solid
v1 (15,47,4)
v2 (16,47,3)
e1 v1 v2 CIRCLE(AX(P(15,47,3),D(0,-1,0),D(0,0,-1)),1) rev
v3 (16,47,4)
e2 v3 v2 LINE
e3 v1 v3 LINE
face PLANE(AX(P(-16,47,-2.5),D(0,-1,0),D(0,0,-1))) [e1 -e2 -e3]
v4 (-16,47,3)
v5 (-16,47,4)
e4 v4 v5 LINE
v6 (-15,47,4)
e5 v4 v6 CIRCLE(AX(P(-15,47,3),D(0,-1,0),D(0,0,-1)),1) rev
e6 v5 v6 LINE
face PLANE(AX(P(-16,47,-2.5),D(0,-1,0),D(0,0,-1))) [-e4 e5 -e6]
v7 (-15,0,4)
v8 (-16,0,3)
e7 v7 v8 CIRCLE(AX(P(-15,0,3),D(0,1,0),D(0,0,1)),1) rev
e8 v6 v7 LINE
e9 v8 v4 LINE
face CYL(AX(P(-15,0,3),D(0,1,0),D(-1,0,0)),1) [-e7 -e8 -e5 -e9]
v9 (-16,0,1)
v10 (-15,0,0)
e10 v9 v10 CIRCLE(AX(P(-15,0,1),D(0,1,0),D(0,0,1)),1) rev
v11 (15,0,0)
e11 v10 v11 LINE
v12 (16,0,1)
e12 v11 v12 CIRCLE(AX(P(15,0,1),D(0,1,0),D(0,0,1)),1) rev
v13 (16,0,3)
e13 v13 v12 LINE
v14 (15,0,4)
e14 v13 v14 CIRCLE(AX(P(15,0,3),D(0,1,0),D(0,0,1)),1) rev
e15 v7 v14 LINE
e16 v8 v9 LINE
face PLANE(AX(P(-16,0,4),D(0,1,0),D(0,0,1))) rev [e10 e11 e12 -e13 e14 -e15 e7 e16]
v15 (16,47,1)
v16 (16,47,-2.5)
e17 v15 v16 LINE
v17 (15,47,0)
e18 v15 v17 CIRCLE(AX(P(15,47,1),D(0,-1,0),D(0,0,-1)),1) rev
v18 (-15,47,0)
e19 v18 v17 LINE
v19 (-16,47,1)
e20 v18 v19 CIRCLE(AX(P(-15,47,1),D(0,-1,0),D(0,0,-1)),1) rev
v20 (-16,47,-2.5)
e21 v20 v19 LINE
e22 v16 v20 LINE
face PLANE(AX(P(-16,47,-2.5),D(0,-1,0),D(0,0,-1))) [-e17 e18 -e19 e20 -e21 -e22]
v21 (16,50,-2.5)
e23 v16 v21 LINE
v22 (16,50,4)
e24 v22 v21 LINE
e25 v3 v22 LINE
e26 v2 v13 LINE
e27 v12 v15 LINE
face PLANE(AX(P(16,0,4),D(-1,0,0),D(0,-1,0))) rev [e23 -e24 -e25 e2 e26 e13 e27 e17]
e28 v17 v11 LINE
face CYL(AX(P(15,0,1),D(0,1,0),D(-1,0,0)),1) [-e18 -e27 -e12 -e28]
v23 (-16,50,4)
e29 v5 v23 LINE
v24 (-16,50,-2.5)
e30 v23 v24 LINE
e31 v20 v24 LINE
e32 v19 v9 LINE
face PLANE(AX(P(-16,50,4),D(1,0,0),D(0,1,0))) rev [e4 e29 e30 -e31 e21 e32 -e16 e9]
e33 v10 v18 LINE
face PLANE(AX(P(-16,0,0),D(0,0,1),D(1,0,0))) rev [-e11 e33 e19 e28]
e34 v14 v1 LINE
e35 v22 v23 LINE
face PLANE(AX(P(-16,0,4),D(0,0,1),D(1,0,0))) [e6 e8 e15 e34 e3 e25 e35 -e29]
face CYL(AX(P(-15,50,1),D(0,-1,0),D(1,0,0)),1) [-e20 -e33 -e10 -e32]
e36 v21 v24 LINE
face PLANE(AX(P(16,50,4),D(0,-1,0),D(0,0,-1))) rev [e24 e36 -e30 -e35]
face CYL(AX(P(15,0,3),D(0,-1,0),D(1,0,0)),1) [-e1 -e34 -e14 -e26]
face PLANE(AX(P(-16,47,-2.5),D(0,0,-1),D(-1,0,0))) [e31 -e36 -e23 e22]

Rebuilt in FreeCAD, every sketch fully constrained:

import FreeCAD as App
import Part
import Sketcher


def edges_at(feature, points):
    """Names of the edges that pass closest to the given points."""
    edges = feature.Shape.Edges
    near = lambda p: min(range(len(edges)), key=lambda i: edges[i].distToShape(Part.Vertex(*p))[0])
    return sorted({f"Edge{near(p) + 1}" for p in points})


def add_polygon(sketch, points):
    """Adds a closed chain of lines whose ends are joined by coincident constraints."""
    first, n = sketch.GeometryCount, len(points)
    for a, b in zip(points, points[1:] + points[:1]):
        sketch.addGeometry(Part.LineSegment(App.Vector(*a, 0), App.Vector(*b, 0)), False)
    for i in range(n):
        sketch.addConstraint(Sketcher.Constraint("Coincident", first + i, 2, first + (i + 1) % n, 1))

doc = App.newDocument("Part")
params = doc.addObject("Spreadsheet::Sheet", "Params")
for row, (alias, value) in enumerate([
    ("sketch1_width", "32 mm"),
    ("sketch1_height", "50 mm"),
    ("pad1_length", "4 mm"),
    ("fillet_radius", "1 mm"),
    ("sketch2_width", "32 mm"),
    ("sketch2_height", "6.5 mm"),
    ("pad2_length", "3 mm"),
], start=1):
    params.set(f"A{row}", alias)
    params.set(f"B{row}", "=" + value)
    params.setAlias(f"B{row}", alias)

body = doc.addObject("PartDesign::Body", "Body")

# Sketch on XY plane
sketch1 = body.newObject("Sketcher::SketchObject", "Sketch")
sketch1.AttachmentSupport = (doc.getObject("XY_Plane"), [""])
sketch1.MapMode = "FlatFace"
add_polygon(sketch1, [(-16, 50), (-16, 0), (16, 0), (16, 50)])  # lines 0-3
sketch1.addConstraint([
    Sketcher.Constraint("Vertical", 0),
    Sketcher.Constraint("Horizontal", 1),
    Sketcher.Constraint("Vertical", 2),
    Sketcher.Constraint("Horizontal", 3),
    Sketcher.Constraint("Symmetric", 0, 2, 1, 2, -1, 1),
    Sketcher.Constraint("DistanceX", 1, 1, 1, 2, 32.0),
    Sketcher.Constraint("DistanceY", 0, 2, 0, 1, 50.0),
])
sketch1.setExpression("Constraints[9]", "Params.sketch1_width")
sketch1.setExpression("Constraints[10]", "Params.sketch1_height")
pad1 = body.newObject("PartDesign::Pad", "Pad")
pad1.Profile = sketch1
pad1.setExpression("Length", "Params.pad1_length")
doc.recompute()

fillet = body.newObject("PartDesign::Fillet", "Fillet")
fillet.Base = (pad1, edges_at(pad1, [
    (16, 25, 4),
    (-16, 25, 4),
    (16, 25, 0),
    (-16, 25, 0),
]))
fillet.setExpression("Radius", "Params.fillet_radius")

# Sketch on XZ plane
sketch2 = body.newObject("Sketcher::SketchObject", "Sketch001")
sketch2.AttachmentSupport = (doc.getObject("XZ_Plane"), [""])
sketch2.MapMode = "FlatFace"
sketch2.AttachmentOffset = App.Placement(App.Vector(0, 0, -50), App.Rotation())
add_polygon(sketch2, [(-16, -2), (-16, 4), (16, 4), (16, -2)])  # lines 0-3
sketch2.addConstraint([
    Sketcher.Constraint("Vertical", 0),
    Sketcher.Constraint("Horizontal", 1),
    Sketcher.Constraint("Vertical", 2),
    Sketcher.Constraint("Horizontal", 3),
    Sketcher.Constraint("DistanceX", 1, 1, 1, 2, 32.0),
    Sketcher.Constraint("DistanceY", 0, 1, 0, 2, 6.5),
    Sketcher.Constraint("DistanceX", 0, 2, -1, 1, 16.0),
    Sketcher.Constraint("DistanceY", -1, 1, 0, 2, 4.0),
])
sketch2.setExpression("Constraints[8]", "Params.sketch2_width")
sketch2.setExpression("Constraints[9]", "Params.sketch2_height")
pad2 = body.newObject("PartDesign::Pad", "Pad001")
pad2.Profile = sketch2
pad2.setExpression("Length", "Params.pad2_length")

doc.recompute()
